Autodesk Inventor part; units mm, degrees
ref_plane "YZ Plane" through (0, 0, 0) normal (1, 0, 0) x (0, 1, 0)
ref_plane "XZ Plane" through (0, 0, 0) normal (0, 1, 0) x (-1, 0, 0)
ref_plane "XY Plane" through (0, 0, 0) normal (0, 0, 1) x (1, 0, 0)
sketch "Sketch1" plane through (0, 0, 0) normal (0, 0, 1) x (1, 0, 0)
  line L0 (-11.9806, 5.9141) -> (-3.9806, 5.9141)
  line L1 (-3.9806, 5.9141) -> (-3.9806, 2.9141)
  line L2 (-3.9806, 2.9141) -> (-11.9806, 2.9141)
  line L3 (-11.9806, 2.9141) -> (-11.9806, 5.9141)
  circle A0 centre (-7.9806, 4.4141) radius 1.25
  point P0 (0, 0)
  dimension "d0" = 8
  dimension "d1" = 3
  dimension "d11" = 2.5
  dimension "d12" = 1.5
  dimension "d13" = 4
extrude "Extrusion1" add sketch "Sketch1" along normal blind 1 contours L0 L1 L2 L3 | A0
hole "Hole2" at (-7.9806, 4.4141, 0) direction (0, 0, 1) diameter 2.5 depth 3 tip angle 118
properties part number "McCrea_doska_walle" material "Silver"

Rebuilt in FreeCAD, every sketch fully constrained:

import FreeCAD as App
import Part
import Sketcher
from FreeCAD import Vector
Q = App.Units.Quantity


def add_polygon(sketch, points):
    """Adds a closed chain of lines whose ends are joined by coincident constraints."""
    first, n = sketch.GeometryCount, len(points)
    for a, b in zip(points, points[1:] + points[:1]):
        sketch.addGeometry(Part.LineSegment(App.Vector(*a, 0), App.Vector(*b, 0)), False)
    for i in range(n):
        sketch.addConstraint(Sketcher.Constraint("Coincident", first + i, 2, first + (i + 1) % n, 1))

doc = App.newDocument("Part")
body = doc.addObject("PartDesign::Body", "Body")

# Sketch on XY plane
sketch1 = doc.addObject("Sketcher::SketchObject", "Sketch")
body.addObject(sketch1)
sketch1.AttachmentSupport = (doc.XY_Plane, [""])
sketch1.MapMode = "FlatFace"
add_polygon(sketch1, [(-4, 5.9), (-12, 5.9), (-12, 2.9), (-4, 2.9)])  # lines 0-3
sketch1.addConstraint([
    Sketcher.Constraint("Horizontal", 0),
    Sketcher.Constraint("Vertical", 1),
    Sketcher.Constraint("Horizontal", 2),
    Sketcher.Constraint("Vertical", 3),
    Sketcher.Constraint("DistanceX", 0, 2, 0, 1, Q("8 mm")),
    Sketcher.Constraint("DistanceY", 1, 2, 1, 1, Q("3 mm")),
    Sketcher.Constraint("DistanceY", -1, 1, 0, 2, Q("5.914 mm")),
    Sketcher.Constraint("DistanceX", 0, 2, -1, 1, Q("11.9806 mm")),
])
pad1 = doc.addObject("PartDesign::Pad", "Pad")
body.addObject(pad1)
pad1.Profile = sketch1
pad1.Length = 1

# Sketch on XY plane
sketch2 = doc.addObject("Sketcher::SketchObject", "Sketch001")
body.addObject(sketch2)
sketch2.AttachmentSupport = (doc.XY_Plane, [""])
sketch2.MapMode = "FlatFace"
sketch2.addGeometry(Part.Circle(Vector(-8, 4.4, 0), Vector(0, 0, 1), 1.2), False)
sketch2.addConstraint([
    Sketcher.Constraint("Diameter", 0, Q("2.5 mm")),
    Sketcher.Constraint("DistanceY", -1, 1, 0, 3, Q("4.414 mm")),
    Sketcher.Constraint("DistanceX", 0, 3, -1, 1, Q("7.9806 mm")),
])
doc.recompute()
hole = doc.addObject("PartDesign::Hole", "Hole")
body.addObject(hole)
hole.Profile = sketch2
hole.ThreadType = "None"
hole.Diameter = 2.5
hole.DepthType = "Dimension"
hole.Depth = 3
hole.DrillPoint = "Angled"
hole.DrillPointAngle = 118
hole.Reversed = True

doc.recompute()
